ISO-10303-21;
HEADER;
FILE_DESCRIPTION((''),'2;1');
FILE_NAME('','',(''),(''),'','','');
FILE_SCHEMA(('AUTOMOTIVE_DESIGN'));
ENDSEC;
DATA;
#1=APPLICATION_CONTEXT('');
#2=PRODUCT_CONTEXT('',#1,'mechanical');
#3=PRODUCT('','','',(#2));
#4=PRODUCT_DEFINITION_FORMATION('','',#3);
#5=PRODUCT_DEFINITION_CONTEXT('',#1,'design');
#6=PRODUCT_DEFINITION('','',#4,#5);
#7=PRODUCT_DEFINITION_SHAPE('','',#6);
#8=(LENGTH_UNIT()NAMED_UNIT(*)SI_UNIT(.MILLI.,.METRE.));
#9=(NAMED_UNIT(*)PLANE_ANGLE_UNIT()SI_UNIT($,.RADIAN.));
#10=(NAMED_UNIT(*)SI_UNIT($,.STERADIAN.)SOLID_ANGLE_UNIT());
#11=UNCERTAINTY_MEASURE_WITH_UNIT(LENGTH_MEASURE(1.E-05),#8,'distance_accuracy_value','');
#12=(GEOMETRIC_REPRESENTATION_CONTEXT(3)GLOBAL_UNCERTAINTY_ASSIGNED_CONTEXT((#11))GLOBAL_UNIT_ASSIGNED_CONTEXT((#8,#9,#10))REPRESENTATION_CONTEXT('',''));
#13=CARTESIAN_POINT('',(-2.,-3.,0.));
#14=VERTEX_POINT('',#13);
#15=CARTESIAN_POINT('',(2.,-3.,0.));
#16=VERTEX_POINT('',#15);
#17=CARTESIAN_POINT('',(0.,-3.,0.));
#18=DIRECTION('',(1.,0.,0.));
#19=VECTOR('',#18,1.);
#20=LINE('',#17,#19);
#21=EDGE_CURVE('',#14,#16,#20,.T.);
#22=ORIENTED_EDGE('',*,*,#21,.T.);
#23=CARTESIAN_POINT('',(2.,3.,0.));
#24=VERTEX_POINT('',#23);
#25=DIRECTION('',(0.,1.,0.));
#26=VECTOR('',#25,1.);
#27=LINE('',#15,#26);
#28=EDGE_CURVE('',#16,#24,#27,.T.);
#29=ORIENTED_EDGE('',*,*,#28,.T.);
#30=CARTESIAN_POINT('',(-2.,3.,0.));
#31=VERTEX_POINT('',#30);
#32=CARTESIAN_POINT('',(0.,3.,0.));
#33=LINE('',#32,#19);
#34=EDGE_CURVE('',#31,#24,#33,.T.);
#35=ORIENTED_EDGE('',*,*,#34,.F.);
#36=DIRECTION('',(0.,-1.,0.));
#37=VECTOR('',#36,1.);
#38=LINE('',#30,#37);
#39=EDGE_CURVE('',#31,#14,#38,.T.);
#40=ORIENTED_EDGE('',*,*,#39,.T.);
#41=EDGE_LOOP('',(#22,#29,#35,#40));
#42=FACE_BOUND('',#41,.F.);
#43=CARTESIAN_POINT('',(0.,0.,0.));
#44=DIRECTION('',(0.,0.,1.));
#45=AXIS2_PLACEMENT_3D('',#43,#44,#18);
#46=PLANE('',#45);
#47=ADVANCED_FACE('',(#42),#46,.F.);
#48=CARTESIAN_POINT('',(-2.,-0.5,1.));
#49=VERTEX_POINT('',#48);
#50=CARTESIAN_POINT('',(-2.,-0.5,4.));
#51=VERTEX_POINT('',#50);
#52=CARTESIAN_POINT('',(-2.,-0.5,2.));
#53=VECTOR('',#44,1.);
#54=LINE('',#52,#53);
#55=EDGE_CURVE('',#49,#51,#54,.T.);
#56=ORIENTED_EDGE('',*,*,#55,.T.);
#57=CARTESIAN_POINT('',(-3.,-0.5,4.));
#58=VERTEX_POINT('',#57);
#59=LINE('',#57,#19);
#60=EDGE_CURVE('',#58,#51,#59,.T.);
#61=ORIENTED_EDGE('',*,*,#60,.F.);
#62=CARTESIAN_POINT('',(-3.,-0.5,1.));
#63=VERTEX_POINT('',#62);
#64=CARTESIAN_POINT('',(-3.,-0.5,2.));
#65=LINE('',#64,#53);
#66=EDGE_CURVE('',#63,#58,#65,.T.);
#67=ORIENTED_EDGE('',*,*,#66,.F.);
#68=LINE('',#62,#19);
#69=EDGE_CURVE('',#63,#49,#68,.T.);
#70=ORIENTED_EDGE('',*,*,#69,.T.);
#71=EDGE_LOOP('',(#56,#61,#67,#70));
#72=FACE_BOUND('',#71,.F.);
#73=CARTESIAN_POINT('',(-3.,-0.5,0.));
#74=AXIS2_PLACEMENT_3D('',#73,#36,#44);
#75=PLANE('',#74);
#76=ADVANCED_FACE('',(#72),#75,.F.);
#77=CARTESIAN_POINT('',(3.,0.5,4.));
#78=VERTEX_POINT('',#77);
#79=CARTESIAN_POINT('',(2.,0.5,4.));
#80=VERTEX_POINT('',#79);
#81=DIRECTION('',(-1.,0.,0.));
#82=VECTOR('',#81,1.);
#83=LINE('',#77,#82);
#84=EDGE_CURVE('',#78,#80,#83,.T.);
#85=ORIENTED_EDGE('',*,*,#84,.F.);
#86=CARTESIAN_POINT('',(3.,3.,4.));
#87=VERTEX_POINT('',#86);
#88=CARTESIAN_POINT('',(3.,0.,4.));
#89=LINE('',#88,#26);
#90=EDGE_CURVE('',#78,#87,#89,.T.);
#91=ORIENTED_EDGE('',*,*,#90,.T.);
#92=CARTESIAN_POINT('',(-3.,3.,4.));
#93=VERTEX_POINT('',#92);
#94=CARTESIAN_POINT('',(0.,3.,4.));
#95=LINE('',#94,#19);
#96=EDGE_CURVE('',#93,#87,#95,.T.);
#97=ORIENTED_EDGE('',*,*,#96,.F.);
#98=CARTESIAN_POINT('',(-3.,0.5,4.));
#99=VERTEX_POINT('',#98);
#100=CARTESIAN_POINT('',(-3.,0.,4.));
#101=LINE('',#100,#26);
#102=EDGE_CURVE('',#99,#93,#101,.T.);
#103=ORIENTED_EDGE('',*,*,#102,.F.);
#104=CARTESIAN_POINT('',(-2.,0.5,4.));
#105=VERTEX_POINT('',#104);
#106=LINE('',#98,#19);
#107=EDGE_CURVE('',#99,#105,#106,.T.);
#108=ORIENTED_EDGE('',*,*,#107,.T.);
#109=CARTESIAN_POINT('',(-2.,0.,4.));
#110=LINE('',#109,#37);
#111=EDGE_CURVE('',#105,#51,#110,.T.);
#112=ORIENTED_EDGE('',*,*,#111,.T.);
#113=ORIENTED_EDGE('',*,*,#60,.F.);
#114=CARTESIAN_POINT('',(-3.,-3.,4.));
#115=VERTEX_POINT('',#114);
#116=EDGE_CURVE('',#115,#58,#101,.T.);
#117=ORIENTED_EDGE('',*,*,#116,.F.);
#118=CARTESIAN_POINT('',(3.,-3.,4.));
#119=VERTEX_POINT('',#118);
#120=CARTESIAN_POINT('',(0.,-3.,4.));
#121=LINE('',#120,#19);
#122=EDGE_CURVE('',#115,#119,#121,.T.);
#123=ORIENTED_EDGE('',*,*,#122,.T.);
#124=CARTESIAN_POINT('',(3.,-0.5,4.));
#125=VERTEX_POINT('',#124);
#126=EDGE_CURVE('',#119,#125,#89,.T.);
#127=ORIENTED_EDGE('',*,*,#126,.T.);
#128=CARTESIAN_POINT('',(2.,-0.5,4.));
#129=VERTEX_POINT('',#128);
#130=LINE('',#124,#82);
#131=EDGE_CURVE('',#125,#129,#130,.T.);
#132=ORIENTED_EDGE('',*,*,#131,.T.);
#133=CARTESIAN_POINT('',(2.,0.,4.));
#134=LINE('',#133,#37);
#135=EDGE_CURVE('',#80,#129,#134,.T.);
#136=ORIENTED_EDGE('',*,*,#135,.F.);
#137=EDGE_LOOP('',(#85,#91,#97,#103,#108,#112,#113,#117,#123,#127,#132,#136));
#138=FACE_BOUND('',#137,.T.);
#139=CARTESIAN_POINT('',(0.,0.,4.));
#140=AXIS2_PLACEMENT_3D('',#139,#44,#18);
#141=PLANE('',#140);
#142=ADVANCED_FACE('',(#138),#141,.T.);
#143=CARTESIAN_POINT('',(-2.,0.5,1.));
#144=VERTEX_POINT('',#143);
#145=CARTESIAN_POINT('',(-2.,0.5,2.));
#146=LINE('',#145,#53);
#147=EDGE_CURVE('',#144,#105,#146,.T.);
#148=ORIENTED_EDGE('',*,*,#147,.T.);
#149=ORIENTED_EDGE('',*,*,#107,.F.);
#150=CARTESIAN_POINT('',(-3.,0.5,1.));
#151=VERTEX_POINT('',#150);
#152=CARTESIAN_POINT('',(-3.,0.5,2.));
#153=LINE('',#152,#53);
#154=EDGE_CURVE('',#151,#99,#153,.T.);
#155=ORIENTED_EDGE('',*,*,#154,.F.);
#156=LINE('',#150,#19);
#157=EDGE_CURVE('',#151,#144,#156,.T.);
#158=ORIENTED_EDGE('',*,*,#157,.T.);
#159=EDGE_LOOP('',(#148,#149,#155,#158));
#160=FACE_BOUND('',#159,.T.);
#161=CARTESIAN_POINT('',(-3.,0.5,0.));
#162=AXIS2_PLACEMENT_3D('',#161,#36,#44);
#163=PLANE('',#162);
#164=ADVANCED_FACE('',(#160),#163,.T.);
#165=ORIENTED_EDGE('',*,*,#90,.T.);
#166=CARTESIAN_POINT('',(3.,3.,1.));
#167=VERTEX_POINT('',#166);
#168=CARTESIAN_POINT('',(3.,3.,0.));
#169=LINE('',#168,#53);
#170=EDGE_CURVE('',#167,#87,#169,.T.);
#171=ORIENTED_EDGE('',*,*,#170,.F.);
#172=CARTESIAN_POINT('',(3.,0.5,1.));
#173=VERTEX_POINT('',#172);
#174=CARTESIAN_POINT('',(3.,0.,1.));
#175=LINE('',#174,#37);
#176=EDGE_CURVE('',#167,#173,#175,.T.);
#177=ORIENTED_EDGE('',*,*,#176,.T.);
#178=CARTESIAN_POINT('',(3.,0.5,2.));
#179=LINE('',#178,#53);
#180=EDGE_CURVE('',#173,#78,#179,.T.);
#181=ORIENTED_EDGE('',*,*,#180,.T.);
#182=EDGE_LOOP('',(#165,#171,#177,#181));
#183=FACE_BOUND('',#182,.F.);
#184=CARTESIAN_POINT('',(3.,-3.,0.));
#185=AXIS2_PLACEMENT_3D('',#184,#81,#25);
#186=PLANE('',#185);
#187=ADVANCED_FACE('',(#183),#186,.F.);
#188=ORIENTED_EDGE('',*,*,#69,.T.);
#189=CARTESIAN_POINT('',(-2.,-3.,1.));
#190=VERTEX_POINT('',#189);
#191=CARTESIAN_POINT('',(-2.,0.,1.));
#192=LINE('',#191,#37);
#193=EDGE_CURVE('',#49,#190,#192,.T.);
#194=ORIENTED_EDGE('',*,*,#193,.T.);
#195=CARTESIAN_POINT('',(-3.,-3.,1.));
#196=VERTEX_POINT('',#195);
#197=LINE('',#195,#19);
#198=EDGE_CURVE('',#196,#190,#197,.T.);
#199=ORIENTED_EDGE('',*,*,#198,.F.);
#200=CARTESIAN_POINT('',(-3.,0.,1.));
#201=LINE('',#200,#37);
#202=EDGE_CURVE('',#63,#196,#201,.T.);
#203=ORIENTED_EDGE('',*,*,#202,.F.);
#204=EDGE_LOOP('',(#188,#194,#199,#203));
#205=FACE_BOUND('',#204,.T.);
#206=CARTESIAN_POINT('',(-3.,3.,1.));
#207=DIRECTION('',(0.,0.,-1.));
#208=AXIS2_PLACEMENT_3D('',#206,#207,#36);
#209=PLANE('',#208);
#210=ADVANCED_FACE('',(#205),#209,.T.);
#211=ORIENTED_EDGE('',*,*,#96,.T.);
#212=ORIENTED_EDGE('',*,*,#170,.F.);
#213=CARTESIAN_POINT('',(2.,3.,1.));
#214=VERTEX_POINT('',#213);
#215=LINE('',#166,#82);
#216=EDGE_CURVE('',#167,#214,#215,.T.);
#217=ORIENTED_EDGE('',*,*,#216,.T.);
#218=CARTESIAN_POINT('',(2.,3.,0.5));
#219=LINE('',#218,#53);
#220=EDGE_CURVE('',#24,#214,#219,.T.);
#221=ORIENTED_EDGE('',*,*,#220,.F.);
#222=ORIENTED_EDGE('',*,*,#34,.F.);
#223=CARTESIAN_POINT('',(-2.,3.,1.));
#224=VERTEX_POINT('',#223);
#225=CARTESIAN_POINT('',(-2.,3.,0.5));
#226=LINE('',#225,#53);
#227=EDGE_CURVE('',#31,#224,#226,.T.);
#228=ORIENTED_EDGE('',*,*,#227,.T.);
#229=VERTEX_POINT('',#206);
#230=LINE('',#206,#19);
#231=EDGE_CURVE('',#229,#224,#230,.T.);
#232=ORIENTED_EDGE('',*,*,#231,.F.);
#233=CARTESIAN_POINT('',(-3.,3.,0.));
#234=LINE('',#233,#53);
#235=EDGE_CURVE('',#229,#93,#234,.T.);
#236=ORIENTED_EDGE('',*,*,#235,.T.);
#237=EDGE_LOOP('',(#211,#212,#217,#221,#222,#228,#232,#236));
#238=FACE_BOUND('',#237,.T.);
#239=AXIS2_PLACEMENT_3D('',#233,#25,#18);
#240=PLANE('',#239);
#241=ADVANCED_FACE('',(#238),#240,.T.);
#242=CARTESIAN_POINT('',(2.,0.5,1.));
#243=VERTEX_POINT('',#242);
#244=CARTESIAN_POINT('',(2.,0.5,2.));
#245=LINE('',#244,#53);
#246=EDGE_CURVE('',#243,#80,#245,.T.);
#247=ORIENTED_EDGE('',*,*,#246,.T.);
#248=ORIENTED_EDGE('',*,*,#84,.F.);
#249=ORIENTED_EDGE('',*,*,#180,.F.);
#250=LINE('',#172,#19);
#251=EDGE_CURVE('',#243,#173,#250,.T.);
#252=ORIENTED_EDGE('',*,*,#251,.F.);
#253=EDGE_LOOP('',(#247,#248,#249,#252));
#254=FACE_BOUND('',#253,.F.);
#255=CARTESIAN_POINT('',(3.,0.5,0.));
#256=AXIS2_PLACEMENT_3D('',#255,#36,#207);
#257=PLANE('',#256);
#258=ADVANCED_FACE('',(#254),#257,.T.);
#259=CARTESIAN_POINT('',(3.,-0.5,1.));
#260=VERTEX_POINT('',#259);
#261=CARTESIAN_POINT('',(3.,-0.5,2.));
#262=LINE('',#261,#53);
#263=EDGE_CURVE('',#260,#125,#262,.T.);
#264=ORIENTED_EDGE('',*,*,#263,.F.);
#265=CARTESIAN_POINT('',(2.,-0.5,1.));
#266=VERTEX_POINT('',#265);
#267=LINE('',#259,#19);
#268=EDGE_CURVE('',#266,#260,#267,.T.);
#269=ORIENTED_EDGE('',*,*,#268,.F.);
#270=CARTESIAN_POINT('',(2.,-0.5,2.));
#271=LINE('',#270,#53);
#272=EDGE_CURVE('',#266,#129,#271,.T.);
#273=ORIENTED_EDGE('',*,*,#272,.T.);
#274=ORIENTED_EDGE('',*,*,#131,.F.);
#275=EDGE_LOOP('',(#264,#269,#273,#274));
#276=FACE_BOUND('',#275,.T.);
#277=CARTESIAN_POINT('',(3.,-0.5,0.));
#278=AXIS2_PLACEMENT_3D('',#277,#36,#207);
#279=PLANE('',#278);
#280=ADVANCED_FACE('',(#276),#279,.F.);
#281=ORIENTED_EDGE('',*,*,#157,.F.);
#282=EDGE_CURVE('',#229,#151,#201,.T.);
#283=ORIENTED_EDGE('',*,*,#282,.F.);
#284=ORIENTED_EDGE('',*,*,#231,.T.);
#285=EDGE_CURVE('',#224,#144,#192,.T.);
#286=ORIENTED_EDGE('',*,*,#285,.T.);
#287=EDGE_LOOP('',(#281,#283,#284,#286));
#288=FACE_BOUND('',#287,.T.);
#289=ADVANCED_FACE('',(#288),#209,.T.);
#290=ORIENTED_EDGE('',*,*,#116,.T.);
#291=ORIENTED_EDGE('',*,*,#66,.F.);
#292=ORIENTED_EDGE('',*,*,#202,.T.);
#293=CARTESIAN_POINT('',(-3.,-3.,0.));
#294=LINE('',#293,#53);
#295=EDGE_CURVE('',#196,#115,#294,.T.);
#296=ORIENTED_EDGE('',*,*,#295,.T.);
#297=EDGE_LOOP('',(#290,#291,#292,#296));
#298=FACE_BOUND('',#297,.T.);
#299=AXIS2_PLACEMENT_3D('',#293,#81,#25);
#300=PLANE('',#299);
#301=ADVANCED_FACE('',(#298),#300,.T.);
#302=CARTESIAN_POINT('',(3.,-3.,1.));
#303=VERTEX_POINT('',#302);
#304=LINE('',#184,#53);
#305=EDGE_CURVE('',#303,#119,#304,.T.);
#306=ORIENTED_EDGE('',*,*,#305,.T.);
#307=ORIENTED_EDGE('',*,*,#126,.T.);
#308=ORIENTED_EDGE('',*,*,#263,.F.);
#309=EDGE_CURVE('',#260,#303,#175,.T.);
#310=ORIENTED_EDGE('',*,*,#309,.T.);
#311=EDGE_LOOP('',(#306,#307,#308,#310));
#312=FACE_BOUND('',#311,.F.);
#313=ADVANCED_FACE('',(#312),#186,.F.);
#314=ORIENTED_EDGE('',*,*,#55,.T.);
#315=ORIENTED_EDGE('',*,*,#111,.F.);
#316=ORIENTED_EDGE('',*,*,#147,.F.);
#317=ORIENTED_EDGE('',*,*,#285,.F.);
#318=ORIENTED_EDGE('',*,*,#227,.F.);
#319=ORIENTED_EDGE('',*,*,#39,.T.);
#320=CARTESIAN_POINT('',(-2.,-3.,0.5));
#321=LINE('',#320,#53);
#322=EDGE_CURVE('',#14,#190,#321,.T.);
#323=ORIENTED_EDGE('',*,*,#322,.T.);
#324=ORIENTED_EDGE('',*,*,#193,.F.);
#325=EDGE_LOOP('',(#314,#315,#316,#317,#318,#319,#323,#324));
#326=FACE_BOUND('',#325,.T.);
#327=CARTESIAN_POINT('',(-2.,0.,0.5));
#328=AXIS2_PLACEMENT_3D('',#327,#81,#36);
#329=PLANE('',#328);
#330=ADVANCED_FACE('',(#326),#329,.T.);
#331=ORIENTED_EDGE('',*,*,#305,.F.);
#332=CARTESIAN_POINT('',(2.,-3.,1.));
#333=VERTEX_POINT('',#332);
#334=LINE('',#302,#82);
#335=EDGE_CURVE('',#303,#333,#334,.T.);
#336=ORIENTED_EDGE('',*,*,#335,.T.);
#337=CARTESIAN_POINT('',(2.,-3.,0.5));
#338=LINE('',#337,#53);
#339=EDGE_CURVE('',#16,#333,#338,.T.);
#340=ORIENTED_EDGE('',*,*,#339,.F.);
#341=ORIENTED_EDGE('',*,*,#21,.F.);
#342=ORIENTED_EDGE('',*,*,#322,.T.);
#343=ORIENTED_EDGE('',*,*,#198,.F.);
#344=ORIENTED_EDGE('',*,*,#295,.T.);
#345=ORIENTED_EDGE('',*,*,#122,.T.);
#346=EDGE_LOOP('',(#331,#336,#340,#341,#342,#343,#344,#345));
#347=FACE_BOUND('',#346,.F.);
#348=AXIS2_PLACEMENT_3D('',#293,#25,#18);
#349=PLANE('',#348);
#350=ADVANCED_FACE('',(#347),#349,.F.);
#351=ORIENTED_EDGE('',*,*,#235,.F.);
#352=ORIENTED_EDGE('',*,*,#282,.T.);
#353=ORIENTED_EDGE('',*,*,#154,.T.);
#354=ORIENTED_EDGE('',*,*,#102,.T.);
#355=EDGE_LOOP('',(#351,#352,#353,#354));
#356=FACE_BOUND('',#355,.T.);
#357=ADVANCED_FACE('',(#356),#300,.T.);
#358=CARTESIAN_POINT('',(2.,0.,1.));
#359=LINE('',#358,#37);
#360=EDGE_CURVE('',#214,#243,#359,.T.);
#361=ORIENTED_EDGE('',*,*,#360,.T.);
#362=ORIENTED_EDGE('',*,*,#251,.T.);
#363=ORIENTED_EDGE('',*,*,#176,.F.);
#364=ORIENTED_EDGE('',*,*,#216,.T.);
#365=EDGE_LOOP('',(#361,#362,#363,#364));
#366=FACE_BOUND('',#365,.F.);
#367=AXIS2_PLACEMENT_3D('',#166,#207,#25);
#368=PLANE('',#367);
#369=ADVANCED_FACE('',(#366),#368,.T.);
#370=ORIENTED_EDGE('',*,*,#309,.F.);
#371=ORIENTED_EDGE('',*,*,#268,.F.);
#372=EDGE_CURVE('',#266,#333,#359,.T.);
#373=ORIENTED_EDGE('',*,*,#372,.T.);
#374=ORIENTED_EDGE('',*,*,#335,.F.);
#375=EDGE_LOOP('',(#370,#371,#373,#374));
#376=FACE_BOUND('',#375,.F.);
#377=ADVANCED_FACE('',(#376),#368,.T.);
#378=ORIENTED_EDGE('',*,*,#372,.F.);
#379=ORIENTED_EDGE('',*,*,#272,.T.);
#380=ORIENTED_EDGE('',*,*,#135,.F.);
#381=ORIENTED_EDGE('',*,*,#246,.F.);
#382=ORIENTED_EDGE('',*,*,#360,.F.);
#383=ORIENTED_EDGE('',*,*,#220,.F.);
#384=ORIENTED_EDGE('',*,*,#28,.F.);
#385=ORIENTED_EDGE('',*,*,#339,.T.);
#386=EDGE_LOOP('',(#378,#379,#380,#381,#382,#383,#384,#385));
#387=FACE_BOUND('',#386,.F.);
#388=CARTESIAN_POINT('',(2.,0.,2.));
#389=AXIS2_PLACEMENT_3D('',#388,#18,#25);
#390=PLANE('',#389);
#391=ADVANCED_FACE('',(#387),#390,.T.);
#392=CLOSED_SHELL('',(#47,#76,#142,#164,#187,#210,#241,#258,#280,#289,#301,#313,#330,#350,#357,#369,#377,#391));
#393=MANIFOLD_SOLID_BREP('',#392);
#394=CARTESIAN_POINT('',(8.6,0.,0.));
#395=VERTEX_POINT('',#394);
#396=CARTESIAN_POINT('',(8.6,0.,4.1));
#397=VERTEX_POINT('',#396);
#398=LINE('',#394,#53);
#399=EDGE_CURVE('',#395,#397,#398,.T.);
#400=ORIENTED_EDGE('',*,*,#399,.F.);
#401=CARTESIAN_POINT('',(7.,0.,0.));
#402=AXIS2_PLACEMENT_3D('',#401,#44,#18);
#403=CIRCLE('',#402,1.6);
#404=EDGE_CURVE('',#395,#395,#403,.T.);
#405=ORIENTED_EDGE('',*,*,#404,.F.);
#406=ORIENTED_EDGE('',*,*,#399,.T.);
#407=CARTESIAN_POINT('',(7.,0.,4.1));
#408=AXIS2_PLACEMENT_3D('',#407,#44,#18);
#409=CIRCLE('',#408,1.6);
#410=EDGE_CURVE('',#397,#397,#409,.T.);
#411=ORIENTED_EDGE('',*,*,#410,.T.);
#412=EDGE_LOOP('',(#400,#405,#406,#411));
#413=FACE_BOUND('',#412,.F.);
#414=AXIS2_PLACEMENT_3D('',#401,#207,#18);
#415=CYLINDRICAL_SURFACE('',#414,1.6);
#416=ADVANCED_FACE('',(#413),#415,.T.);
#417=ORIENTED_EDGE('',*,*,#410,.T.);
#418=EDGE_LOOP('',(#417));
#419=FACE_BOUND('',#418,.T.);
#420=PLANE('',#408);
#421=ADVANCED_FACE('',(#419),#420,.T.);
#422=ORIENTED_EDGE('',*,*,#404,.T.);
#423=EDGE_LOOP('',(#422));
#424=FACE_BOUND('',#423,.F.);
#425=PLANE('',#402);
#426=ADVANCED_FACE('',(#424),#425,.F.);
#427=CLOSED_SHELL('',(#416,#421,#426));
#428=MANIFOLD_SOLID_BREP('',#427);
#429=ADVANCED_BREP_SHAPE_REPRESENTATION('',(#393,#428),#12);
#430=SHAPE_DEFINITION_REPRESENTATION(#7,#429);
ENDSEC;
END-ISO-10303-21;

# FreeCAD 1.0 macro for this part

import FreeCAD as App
import Part
import Sketcher
from FreeCAD import Vector
Q = App.Units.Quantity


def add_polygon(sketch, points):
    """Adds a closed chain of lines whose ends are joined by coincident constraints."""
    first, n = sketch.GeometryCount, len(points)
    for a, b in zip(points, points[1:] + points[:1]):
        sketch.addGeometry(Part.LineSegment(App.Vector(*a, 0), App.Vector(*b, 0)), False)
    for i in range(n):
        sketch.addConstraint(Sketcher.Constraint("Coincident", first + i, 2, first + (i + 1) % n, 1))

doc = App.newDocument("Part")
body = doc.addObject("PartDesign::Body", "Body")

sketch1 = body.newObject("Sketcher::SketchObject", "Sketch")
sketch1.AttachmentSupport = (doc.getObject("XY_Plane"), [""])
sketch1.MapMode = "FlatFace"
add_polygon(sketch1, [(-3, 3), (-3, -3), (3, -3), (3, 3)])
sketch1.addConstraint([
    Sketcher.Constraint("Vertical", 0),
    Sketcher.Constraint("Horizontal", 1),
    Sketcher.Constraint("Vertical", 2),
    Sketcher.Constraint("Horizontal", 3),
    Sketcher.Constraint("Symmetric", 0, 2, 2, 2, -1, 1),
    Sketcher.Constraint("Equal", 3, 0),
    Sketcher.Constraint("DistanceX", 1, 1, 1, 2, Q("6 mm")),
])
pad1 = body.newObject("PartDesign::Pad", "Pad")
pad1.Profile = sketch1
pad1.Length = 4

sketch2 = body.newObject("Sketcher::SketchObject", "Sketch001")
sketch2.AttachmentSupport = (doc.getObject("YZ_Plane"), [""])
sketch2.MapMode = "FlatFace"
sketch2.AttachmentOffset = App.Placement(Vector(0, 0, -3), App.Rotation())
add_polygon(sketch2, [(0.5, 4), (0.5, 0), (-0.5, 0), (-0.5, 4)])
sketch2.addConstraint([
    Sketcher.Constraint("Vertical", 0),
    Sketcher.Constraint("Horizontal", 1),
    Sketcher.Constraint("Vertical", 2),
    Sketcher.Constraint("Horizontal", 3),
    Sketcher.Constraint("Symmetric", 0, 2, 1, 2, -1, 1),
    Sketcher.Constraint("DistanceX", 1, 2, 1, 1, Q("1 mm")),
    Sketcher.Constraint("DistanceY", 0, 2, 0, 1, Q("4 mm")),
])
pocket1 = body.newObject("PartDesign::Pocket", "Pocket")
pocket1.Profile = sketch2
pocket1.Length = 1
pocket1.Reversed = True
doc.recompute()

mirrored = body.newObject("PartDesign::Mirrored", "Mirrored")
mirrored.Originals = [pocket1]
mirrored.MirrorPlane = (doc.getObject("YZ_Plane"), [""])
body.Tip = mirrored

sketch3 = body.newObject("Sketcher::SketchObject", "Sketch002")
sketch3.AttachmentSupport = (doc.getObject("YZ_Plane"), [""])
sketch3.MapMode = "FlatFace"
sketch3.AttachmentOffset = App.Placement(Vector(0, 0, -3), App.Rotation())
add_polygon(sketch3, [(3, 1), (3, 0), (-3, 0), (-3, 1)])
sketch3.addConstraint([
    Sketcher.Constraint("Vertical", 0),
    Sketcher.Constraint("Horizontal", 1),
    Sketcher.Constraint("Vertical", 2),
    Sketcher.Constraint("Horizontal", 3),
    Sketcher.Constraint("Symmetric", 0, 2, 1, 2, -1, 1),
    Sketcher.Constraint("DistanceX", 1, 2, 1, 1, Q("6 mm")),
    Sketcher.Constraint("DistanceY", 0, 2, 0, 1, Q("1 mm")),
])
pocket2 = body.newObject("PartDesign::Pocket", "Pocket001")
pocket2.Profile = sketch3
pocket2.Length = 1
pocket2.Reversed = True
doc.recompute()

mirrored2 = body.newObject("PartDesign::Mirrored", "Mirrored001")
mirrored2.Originals = [pocket2]
mirrored2.MirrorPlane = (doc.getObject("YZ_Plane"), [""])
body.Tip = mirrored2
body2 = doc.addObject("PartDesign::Body", "Body001")

sketch4 = body2.newObject("Sketcher::SketchObject", "Sketch003")
sketch4.AttachmentSupport = (doc.getObject("XY_Plane001"), [""])
sketch4.MapMode = "FlatFace"
sketch4.addGeometry(Part.Circle(Vector(7, 0, 0), Vector(0, 0, 1), 1.6), False)
sketch4.addConstraint([
    Sketcher.Constraint("PointOnObject", 0, 3, -1),
    Sketcher.Constraint("Diameter", 0, Q("3.2 mm")),
    Sketcher.Constraint("DistanceX", -1, 1, 0, 3, Q("7 mm")),
])
pad2 = body2.newObject("PartDesign::Pad", "Pad001")
pad2.Profile = sketch4
pad2.Length = 4.1

doc.recompute()
